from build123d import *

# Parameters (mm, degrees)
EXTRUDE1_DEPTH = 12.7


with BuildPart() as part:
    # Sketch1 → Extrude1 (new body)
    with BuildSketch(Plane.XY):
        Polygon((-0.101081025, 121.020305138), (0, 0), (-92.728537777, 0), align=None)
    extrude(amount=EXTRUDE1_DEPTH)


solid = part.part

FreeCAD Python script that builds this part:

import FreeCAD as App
import Part
import Sketcher

V = App.Vector
Q = App.Units.Quantity

doc = App.newDocument("Part")
params = doc.addObject("Spreadsheet::Sheet", "Params")
for row, (alias, value) in enumerate([
    ("sketch1_length", "6 in"),
    ("pad1_length", "0.5 in"),
], start=1):
    params.set(f"A{row}", alias)
    params.set(f"B{row}", "=" + value)
    params.setAlias(f"B{row}", alias)

body = doc.addObject("PartDesign::Body", "Body")

# Sketch on XY plane
sketch1 = body.newObject("Sketcher::SketchObject", "Sketch")
sketch1.AttachmentSupport = (doc.getObject("XY_Plane"), [""])
sketch1.MapMode = "FlatFace"
sketch1.addGeometry([
    Part.LineSegment(V(0, 0, 0), V(0, 121, 0)),
    Part.LineSegment(V(0, 121, 0), V(-93, 0, 0)),
    Part.LineSegment(V(-93, 0, 0), V(0, 0, 0)),
], False)
sketch1.addConstraint([
    Sketcher.Constraint("Coincident", 0, 2, 1, 1),
    Sketcher.Constraint("Coincident", 1, 2, 2, 1),
    Sketcher.Constraint("Coincident", 2, 2, 0, 1),
    Sketcher.Constraint("Horizontal", 2),
    Sketcher.Constraint("Coincident", 2, 2, -1, 1),
    Sketcher.Constraint("Distance", 1, Q("6 in")),
    Sketcher.Constraint("Angle", 1, Q("-127.43 deg")),
    Sketcher.Constraint("DistanceX", 2, 1, 2, 2, Q("92.728538 mm")),
])
sketch1.setExpression("Constraints[5]", "Params.sketch1_length")
pad1 = body.newObject("PartDesign::Pad", "Pad")
pad1.Profile = sketch1
pad1.setExpression("Length", "Params.pad1_length")

doc.recompute()
